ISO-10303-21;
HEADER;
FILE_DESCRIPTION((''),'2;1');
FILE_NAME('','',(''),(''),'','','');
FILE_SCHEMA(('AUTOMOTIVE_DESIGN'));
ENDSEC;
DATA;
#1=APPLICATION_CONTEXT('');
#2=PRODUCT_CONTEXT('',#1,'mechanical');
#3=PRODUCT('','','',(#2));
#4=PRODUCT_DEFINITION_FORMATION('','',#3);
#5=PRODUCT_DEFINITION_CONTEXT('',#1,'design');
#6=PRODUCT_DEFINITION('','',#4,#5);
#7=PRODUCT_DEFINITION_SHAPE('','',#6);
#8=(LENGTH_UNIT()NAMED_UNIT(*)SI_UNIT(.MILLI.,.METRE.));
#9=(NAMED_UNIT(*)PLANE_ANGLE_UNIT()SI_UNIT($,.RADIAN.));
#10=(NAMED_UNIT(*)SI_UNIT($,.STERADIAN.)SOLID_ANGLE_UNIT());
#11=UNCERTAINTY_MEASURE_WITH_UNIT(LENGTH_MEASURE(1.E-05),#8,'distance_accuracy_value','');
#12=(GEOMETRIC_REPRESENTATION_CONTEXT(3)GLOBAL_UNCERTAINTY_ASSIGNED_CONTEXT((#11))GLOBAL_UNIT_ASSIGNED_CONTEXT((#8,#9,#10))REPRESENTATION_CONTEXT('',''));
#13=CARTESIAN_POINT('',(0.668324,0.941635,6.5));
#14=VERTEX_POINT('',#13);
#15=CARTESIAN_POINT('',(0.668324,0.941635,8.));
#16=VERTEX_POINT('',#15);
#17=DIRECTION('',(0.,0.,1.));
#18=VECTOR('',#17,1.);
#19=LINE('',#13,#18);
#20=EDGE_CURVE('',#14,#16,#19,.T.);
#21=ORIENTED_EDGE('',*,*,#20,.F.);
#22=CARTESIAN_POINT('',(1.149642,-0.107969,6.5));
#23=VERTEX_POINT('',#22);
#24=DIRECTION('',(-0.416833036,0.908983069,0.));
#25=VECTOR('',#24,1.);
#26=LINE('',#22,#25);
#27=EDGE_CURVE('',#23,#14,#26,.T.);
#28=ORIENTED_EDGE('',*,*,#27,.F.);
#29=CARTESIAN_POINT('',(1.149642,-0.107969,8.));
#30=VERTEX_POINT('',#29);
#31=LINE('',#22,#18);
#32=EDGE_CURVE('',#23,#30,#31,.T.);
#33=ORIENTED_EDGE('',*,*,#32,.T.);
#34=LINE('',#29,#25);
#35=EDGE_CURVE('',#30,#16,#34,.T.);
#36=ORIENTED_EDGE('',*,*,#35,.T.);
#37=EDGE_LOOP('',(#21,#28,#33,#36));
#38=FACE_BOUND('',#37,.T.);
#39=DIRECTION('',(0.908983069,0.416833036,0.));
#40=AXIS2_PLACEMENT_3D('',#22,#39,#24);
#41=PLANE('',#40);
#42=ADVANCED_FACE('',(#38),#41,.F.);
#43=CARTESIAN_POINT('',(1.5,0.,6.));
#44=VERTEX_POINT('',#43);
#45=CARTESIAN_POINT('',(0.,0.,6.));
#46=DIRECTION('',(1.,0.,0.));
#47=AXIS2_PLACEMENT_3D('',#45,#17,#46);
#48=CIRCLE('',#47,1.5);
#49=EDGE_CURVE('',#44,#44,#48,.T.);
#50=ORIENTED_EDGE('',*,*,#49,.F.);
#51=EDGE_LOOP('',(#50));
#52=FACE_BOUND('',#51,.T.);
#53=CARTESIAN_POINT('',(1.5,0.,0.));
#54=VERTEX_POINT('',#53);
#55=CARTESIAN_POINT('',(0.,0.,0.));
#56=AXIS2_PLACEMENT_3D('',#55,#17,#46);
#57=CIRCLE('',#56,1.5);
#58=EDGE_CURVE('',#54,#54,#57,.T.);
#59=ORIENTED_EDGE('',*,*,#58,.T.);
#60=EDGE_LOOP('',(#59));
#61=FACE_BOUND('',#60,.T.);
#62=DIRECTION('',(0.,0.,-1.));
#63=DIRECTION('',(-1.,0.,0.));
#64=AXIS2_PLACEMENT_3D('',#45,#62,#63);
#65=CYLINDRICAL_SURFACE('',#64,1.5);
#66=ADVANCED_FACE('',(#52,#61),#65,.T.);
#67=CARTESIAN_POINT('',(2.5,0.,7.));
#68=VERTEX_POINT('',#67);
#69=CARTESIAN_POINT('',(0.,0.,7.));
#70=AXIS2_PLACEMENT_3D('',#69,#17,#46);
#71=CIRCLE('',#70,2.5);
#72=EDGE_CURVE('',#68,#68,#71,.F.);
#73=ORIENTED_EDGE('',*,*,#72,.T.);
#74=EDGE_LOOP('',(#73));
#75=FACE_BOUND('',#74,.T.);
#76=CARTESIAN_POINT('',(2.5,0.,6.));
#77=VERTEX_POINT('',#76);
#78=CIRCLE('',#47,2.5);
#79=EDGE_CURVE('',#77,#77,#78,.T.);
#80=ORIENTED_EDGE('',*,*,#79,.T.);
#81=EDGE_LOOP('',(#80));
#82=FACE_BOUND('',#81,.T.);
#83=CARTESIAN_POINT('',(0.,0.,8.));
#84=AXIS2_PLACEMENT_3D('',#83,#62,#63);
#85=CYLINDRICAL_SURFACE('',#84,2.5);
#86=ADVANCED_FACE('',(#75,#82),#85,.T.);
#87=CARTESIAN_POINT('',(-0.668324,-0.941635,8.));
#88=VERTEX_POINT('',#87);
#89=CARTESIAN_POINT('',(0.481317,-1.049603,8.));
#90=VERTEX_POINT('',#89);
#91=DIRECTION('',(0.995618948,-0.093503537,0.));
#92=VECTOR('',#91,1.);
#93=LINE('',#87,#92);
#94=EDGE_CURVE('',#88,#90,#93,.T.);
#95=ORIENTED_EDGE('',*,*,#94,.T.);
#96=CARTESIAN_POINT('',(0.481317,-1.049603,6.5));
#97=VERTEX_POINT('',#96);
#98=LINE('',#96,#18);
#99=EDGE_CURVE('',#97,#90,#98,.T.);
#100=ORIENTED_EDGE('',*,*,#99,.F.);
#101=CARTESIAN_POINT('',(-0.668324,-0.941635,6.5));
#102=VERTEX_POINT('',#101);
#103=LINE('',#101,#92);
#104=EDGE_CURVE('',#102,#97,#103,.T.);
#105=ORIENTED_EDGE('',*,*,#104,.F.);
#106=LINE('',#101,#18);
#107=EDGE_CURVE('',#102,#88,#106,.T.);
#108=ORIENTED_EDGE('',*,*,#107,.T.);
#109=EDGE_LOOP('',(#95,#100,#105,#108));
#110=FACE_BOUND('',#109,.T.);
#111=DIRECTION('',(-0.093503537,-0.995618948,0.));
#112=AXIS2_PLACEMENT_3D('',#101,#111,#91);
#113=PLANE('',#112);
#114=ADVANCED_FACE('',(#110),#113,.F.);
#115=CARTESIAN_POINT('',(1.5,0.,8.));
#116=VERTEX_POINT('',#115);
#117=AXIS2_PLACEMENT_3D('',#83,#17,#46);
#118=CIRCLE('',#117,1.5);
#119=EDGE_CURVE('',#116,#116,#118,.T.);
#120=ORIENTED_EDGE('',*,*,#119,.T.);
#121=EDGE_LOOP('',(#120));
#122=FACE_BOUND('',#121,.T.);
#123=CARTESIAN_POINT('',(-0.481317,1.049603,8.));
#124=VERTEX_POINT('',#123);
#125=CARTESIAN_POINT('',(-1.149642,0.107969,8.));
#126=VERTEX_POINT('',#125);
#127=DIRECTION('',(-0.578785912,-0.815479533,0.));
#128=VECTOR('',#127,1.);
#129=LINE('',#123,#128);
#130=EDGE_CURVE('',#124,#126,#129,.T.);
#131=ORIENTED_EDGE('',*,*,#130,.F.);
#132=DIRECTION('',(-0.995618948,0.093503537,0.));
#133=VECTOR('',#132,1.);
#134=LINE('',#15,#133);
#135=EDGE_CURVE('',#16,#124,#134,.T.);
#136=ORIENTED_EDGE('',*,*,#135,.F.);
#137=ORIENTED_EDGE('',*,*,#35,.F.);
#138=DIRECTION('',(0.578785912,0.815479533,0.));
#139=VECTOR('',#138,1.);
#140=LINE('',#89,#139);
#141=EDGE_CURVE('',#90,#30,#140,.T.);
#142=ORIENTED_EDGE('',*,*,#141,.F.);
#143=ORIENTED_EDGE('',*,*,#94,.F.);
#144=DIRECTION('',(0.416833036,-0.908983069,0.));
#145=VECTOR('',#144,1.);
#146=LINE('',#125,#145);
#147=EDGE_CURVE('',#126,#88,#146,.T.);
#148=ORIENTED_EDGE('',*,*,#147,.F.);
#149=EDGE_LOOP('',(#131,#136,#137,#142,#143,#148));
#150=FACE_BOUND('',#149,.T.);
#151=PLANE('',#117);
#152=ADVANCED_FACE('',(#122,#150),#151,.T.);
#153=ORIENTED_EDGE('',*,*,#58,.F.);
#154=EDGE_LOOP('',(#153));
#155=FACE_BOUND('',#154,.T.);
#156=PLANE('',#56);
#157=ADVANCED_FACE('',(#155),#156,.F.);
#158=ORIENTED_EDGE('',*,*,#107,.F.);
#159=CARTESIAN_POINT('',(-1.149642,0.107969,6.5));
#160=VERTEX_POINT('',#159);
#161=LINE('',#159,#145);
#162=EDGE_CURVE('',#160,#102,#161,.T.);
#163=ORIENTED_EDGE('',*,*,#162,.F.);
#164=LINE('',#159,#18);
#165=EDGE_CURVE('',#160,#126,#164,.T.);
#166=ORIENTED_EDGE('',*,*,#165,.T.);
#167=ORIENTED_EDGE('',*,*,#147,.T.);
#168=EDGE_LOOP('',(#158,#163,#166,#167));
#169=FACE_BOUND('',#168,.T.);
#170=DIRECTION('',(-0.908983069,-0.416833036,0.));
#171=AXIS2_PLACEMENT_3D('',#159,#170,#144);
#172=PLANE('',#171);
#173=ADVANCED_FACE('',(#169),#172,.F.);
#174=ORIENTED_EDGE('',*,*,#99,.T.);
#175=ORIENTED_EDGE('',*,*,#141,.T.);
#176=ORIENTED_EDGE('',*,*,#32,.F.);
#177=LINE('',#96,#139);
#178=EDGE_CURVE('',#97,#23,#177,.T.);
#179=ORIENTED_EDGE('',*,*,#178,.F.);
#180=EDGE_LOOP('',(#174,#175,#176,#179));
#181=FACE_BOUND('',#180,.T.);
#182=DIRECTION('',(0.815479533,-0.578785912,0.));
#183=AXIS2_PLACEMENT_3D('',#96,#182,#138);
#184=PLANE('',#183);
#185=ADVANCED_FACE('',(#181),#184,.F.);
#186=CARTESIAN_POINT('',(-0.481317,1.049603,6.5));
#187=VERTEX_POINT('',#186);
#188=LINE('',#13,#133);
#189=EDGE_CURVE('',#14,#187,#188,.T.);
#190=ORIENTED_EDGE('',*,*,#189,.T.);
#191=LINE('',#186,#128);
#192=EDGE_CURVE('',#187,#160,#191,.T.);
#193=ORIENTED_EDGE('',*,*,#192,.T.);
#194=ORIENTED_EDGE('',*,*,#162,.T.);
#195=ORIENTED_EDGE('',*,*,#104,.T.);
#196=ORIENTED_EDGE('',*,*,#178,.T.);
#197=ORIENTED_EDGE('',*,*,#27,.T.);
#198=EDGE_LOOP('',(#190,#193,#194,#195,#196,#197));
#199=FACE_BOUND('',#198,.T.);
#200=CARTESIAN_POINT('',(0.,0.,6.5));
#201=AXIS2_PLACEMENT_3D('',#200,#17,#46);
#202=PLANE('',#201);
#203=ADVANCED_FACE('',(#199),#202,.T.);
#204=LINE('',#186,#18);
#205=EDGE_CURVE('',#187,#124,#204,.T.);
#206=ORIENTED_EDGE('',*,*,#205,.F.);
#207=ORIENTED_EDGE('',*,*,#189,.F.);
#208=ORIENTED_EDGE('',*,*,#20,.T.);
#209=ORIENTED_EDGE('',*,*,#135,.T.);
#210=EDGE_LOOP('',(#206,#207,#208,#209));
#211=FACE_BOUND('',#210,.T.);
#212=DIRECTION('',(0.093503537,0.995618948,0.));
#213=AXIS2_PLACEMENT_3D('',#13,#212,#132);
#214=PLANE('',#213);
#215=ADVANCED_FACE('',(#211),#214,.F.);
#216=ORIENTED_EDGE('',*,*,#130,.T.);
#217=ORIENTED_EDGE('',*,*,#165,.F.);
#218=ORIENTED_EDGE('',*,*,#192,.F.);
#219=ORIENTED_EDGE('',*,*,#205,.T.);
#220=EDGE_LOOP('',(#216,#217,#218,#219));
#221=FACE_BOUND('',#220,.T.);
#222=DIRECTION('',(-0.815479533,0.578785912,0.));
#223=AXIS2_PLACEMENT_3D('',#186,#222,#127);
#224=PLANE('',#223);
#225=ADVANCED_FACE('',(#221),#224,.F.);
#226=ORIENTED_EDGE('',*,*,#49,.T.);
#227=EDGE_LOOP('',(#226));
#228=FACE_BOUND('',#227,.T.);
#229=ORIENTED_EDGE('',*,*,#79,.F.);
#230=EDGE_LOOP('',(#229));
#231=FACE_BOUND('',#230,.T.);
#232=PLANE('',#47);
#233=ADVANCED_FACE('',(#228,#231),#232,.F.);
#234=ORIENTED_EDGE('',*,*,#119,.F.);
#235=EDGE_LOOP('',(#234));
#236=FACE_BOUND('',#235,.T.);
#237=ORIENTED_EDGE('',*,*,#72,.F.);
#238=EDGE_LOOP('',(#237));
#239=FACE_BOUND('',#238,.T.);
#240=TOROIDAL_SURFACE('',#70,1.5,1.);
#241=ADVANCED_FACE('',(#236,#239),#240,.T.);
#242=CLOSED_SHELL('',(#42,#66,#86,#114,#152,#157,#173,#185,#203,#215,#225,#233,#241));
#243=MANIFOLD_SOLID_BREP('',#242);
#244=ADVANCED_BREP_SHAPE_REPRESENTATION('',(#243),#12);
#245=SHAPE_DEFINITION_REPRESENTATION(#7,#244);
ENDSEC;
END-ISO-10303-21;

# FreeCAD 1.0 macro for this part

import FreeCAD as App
import Part
import Sketcher
from FreeCAD import Vector


def edges_at(feature, points):
    """Names of the edges that pass closest to the given points."""
    edges = feature.Shape.Edges
    near = lambda p: min(range(len(edges)), key=lambda i: edges[i].distToShape(Part.Vertex(*p))[0])
    return sorted({f"Edge{near(p) + 1}" for p in points})

doc = App.newDocument("Part")
body = doc.addObject("PartDesign::Body", "Body")

sketch1 = body.newObject("Sketcher::SketchObject", "Sketch")
sketch1.AttachmentSupport = (doc.getObject("XY_Plane"), [""])
sketch1.MapMode = "FlatFace"
sketch1.addGeometry(Part.Circle(Vector(0, 0, 0), Vector(0, 0, 1), 1.5), False)
sketch1.addConstraint([
    Sketcher.Constraint("Coincident", 0, 3, -1, 1),
    Sketcher.Constraint("Diameter", 0, 3.0),
])
pad1 = body.newObject("PartDesign::Pad", "Pad")
pad1.Profile = sketch1
pad1.Length = 6

sketch2 = body.newObject("Sketcher::SketchObject", "Sketch001")
sketch2.AttachmentSupport = (doc.getObject("XY_Plane"), [""])
sketch2.MapMode = "FlatFace"
sketch2.AttachmentOffset = App.Placement(Vector(0, 0, 6), App.Rotation())
sketch2.addGeometry(Part.Circle(Vector(0, 0, 0), Vector(0, 0, 1), 2.5), False)
sketch2.addConstraint([
    Sketcher.Constraint("Coincident", 0, 3, -1, 1),
    Sketcher.Constraint("Diameter", 0, 5.0),
])
pad2 = body.newObject("PartDesign::Pad", "Pad001")
pad2.Profile = sketch2
pad2.Length = 2

sketch3 = body.newObject("Sketcher::SketchObject", "Sketch002")
sketch3.AttachmentSupport = (doc.getObject("XY_Plane"), [""])
sketch3.MapMode = "FlatFace"
sketch3.AttachmentOffset = App.Placement(Vector(0, 0, 8), App.Rotation())
sketch3.addGeometry([
    Part.LineSegment(Vector(1.1, -0.1, 0), Vector(0.7, 0.9, 0)),
    Part.LineSegment(Vector(0.7, 0.9, 0), Vector(-0.5, 1, 0)),
    Part.LineSegment(Vector(-0.5, 1, 0), Vector(-1.1, 0.1, 0)),
    Part.LineSegment(Vector(-1.1, 0.1, 0), Vector(-0.7, -0.9, 0)),
    Part.LineSegment(Vector(-0.7, -0.9, 0), Vector(0.5, -1, 0)),
    Part.LineSegment(Vector(0.5, -1, 0), Vector(1.1, -0.1, 0)),
], False)
sketch3.addConstraint([
    Sketcher.Constraint("Coincident", 0, 2, 1, 1),
    Sketcher.Constraint("Coincident", 1, 2, 2, 1),
    Sketcher.Constraint("Coincident", 2, 2, 3, 1),
    Sketcher.Constraint("Coincident", 3, 2, 4, 1),
    Sketcher.Constraint("Coincident", 4, 2, 5, 1),
    Sketcher.Constraint("Coincident", 5, 2, 0, 1),
    Sketcher.Constraint("Symmetric", 0, 2, 3, 2, -1, 1),
    Sketcher.Constraint("Symmetric", 1, 2, 4, 2, -1, 1),
    Sketcher.Constraint("Symmetric", 2, 2, 5, 2, -1, 1),
    Sketcher.Constraint("Equal", 0, 1),
    Sketcher.Constraint("Equal", 1, 2),
    Sketcher.Constraint("Distance", 0, 1.154701),
    Sketcher.Constraint("DistanceX", 2, 2, -1, 1, 1.149642),
    Sketcher.Constraint("DistanceY", -1, 1, 2, 2, 0.107969),
    Sketcher.Constraint("DistanceX", 1, 2, 0, 2, 1.149642),
])
pocket1 = body.newObject("PartDesign::Pocket", "Pocket")
pocket1.Profile = sketch3
pocket1.Length = 1.5
doc.recompute()

fillet = body.newObject("PartDesign::Fillet", "Fillet")
fillet.Base = (pocket1, edges_at(pocket1, [(-2.5, 0, 8)]))
fillet.Radius = 1

doc.recompute()
